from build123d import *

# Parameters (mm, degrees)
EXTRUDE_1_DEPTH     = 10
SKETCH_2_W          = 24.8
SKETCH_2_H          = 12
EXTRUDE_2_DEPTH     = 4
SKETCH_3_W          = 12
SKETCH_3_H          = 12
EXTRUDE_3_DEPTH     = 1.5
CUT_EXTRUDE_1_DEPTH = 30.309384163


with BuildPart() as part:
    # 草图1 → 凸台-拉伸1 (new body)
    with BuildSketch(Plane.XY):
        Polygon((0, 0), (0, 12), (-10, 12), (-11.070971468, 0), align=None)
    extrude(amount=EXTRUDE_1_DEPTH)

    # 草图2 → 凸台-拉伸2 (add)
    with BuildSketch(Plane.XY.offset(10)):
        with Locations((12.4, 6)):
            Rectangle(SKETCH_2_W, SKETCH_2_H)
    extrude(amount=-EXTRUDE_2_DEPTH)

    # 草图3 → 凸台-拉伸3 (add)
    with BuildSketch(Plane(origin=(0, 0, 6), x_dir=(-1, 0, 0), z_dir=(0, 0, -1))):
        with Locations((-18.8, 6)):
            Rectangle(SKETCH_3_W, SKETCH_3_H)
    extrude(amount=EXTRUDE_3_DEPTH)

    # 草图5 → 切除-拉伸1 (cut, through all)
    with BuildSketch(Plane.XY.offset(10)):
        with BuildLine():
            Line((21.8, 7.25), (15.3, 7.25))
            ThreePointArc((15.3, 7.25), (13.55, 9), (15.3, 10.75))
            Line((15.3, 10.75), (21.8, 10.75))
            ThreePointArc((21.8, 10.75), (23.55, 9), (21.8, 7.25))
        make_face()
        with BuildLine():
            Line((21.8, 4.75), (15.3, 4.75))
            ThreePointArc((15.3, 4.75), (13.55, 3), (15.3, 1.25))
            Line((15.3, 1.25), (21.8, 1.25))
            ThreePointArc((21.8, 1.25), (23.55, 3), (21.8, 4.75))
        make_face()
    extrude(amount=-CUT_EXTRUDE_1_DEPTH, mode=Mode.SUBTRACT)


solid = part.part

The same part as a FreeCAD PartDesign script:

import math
import FreeCAD as App
import Part
import Sketcher

V = App.Vector
Q = App.Units.Quantity

doc = App.newDocument("Part")
body = doc.addObject("PartDesign::Body", "Body")

# Sketch on XY plane
sketch1 = body.newObject("Sketcher::SketchObject", "Sketch")
sketch1.AttachmentSupport = (doc.getObject("XY_Plane"), [""])
sketch1.MapMode = "FlatFace"
sketch1.addGeometry(Part.LineSegment(V(0, 0, 0), V(0, 12, 0)), False)
sketch1.addGeometry(Part.LineSegment(V(0, 12, 0), V(-10, 12, 0)), False)
sketch1.addGeometry(Part.LineSegment(V(-10, 12, 0), V(-11, 0, 0)), False)
sketch1.addGeometry(Part.LineSegment(V(-11, 0, 0), V(0, 0, 0)), False)
sketch1.addConstraint(Sketcher.Constraint("Coincident", 0, 2, 1, 1))
sketch1.addConstraint(Sketcher.Constraint("Coincident", 1, 2, 2, 1))
sketch1.addConstraint(Sketcher.Constraint("Coincident", 2, 2, 3, 1))
sketch1.addConstraint(Sketcher.Constraint("Coincident", 3, 2, 0, 1))
sketch1.addConstraint(Sketcher.Constraint("Vertical", 0))
sketch1.addConstraint(Sketcher.Constraint("Horizontal", 1))
sketch1.addConstraint(Sketcher.Constraint("Horizontal", 3))
sketch1.addConstraint(Sketcher.Constraint("Coincident", 3, 2, -1, 1))
sketch1.addConstraint(Sketcher.Constraint("DistanceX", 1, 2, 1, 1, Q("10 mm")))
sketch1.addConstraint(Sketcher.Constraint("DistanceY", 0, 1, 0, 2, Q("12 mm")))
sketch1.addConstraint(Sketcher.Constraint("Angle", 2, Q("-95.1 deg")))
pad1 = body.newObject("PartDesign::Pad", "Pad")
pad1.Profile = sketch1
pad1.Length = 10

# Sketch on XY plane
sketch2 = body.newObject("Sketcher::SketchObject", "Sketch001")
sketch2.AttachmentSupport = (doc.getObject("XY_Plane"), [""])
sketch2.MapMode = "FlatFace"
sketch2.AttachmentOffset = App.Placement(V(0, 0, 10), App.Rotation())
sketch2.addGeometry(Part.LineSegment(V(0, 12, 0), V(0, 0, 0)), False)
sketch2.addGeometry(Part.LineSegment(V(0, 0, 0), V(25, 0, 0)), False)
sketch2.addGeometry(Part.LineSegment(V(25, 0, 0), V(25, 12, 0)), False)
sketch2.addGeometry(Part.LineSegment(V(25, 12, 0), V(0, 12, 0)), False)
sketch2.addConstraint(Sketcher.Constraint("Coincident", 0, 2, 1, 1))
sketch2.addConstraint(Sketcher.Constraint("Coincident", 1, 2, 2, 1))
sketch2.addConstraint(Sketcher.Constraint("Coincident", 2, 2, 3, 1))
sketch2.addConstraint(Sketcher.Constraint("Coincident", 3, 2, 0, 1))
sketch2.addConstraint(Sketcher.Constraint("Vertical", 0))
sketch2.addConstraint(Sketcher.Constraint("Horizontal", 1))
sketch2.addConstraint(Sketcher.Constraint("Vertical", 2))
sketch2.addConstraint(Sketcher.Constraint("Horizontal", 3))
sketch2.addConstraint(Sketcher.Constraint("Coincident", 0, 2, -1, 1))
sketch2.addConstraint(Sketcher.Constraint("DistanceY", 0, 2, 0, 1, Q("12 mm")))
sketch2.addConstraint(Sketcher.Constraint("DistanceX", 1, 1, 1, 2, Q("24.8 mm")))
pad2 = body.newObject("PartDesign::Pad", "Pad001")
pad2.Profile = sketch2
pad2.Length = 4
pad2.Reversed = True

# Sketch on XY plane
sketch3 = body.newObject("Sketcher::SketchObject", "Sketch002")
sketch3.AttachmentSupport = (doc.getObject("XY_Plane"), [""])
sketch3.MapMode = "FlatFace"
sketch3.AttachmentOffset = App.Placement(V(0, 0, 6), App.Rotation())
sketch3.addGeometry(Part.LineSegment(V(25, 12, 0), V(25, 0, 0)), False)
sketch3.addGeometry(Part.LineSegment(V(25, 0, 0), V(13, 0, 0)), False)
sketch3.addGeometry(Part.LineSegment(V(13, 0, 0), V(13, 12, 0)), False)
sketch3.addGeometry(Part.LineSegment(V(13, 12, 0), V(25, 12, 0)), False)
sketch3.addConstraint(Sketcher.Constraint("Coincident", 0, 2, 1, 1))
sketch3.addConstraint(Sketcher.Constraint("Coincident", 1, 2, 2, 1))
sketch3.addConstraint(Sketcher.Constraint("Coincident", 2, 2, 3, 1))
sketch3.addConstraint(Sketcher.Constraint("Coincident", 3, 2, 0, 1))
sketch3.addConstraint(Sketcher.Constraint("Vertical", 0))
sketch3.addConstraint(Sketcher.Constraint("Horizontal", 1))
sketch3.addConstraint(Sketcher.Constraint("Vertical", 2))
sketch3.addConstraint(Sketcher.Constraint("Horizontal", 3))
sketch3.addConstraint(Sketcher.Constraint("PointOnObject", 0, 2, -1))
sketch3.addConstraint(Sketcher.Constraint("Equal", 3, 0))
sketch3.addConstraint(Sketcher.Constraint("DistanceX", 1, 2, 1, 1, Q("12 mm")))
sketch3.addConstraint(Sketcher.Constraint("DistanceX", -1, 1, 0, 2, Q("24.8 mm")))
pad3 = body.newObject("PartDesign::Pad", "Pad002")
pad3.Profile = sketch3
pad3.Length = 1.5
pad3.Reversed = True

# Sketch on XY plane
sketch4 = body.newObject("Sketcher::SketchObject", "Sketch003")
sketch4.AttachmentSupport = (doc.getObject("XY_Plane"), [""])
sketch4.MapMode = "FlatFace"
sketch4.AttachmentOffset = App.Placement(V(0, 0, 10), App.Rotation())
sketch4.addGeometry(Part.LineSegment(V(15.3, 7.2, 0), V(21.8, 7.2, 0)), False)
sketch4.addGeometry(Part.ArcOfCircle(Part.Circle(V(21.8, 9, 0), V(0, 0, 1), 1.8), math.radians(-90), math.radians(90)), False)
sketch4.addGeometry(Part.LineSegment(V(21.8, 10.8, 0), V(15.3, 10.8, 0)), False)
sketch4.addGeometry(Part.ArcOfCircle(Part.Circle(V(15.3, 9, 0), V(0, 0, 1), 1.8), math.radians(90), math.radians(270)), False)
sketch4.addGeometry(Part.LineSegment(V(21.8, 4.8, 0), V(15.3, 4.8, 0)), False)
sketch4.addGeometry(Part.ArcOfCircle(Part.Circle(V(15.3, 3, 0), V(0, 0, 1), 1.8), math.radians(90), math.radians(270)), False)
sketch4.addGeometry(Part.LineSegment(V(15.3, 1.2, 0), V(21.8, 1.2, 0)), False)
sketch4.addGeometry(Part.ArcOfCircle(Part.Circle(V(21.8, 3, 0), V(0, 0, 1), 1.8), math.radians(-90), math.radians(90)), False)
sketch4.addConstraint(Sketcher.Constraint("Tangent", 0, 2, 1, 1))
sketch4.addConstraint(Sketcher.Constraint("Tangent", 1, 2, 2, 1))
sketch4.addConstraint(Sketcher.Constraint("Tangent", 2, 2, 3, 1))
sketch4.addConstraint(Sketcher.Constraint("Tangent", 3, 2, 0, 1))
sketch4.addConstraint(Sketcher.Constraint("Tangent", 4, 2, 5, 1))
sketch4.addConstraint(Sketcher.Constraint("Tangent", 5, 2, 6, 1))
sketch4.addConstraint(Sketcher.Constraint("Tangent", 6, 2, 7, 1))
sketch4.addConstraint(Sketcher.Constraint("Tangent", 7, 2, 4, 1))
sketch4.addConstraint(Sketcher.Constraint("Horizontal", 0))
sketch4.addConstraint(Sketcher.Constraint("Horizontal", 2))
sketch4.addConstraint(Sketcher.Constraint("Horizontal", 4))
sketch4.addConstraint(Sketcher.Constraint("Horizontal", 6))
sketch4.addConstraint(Sketcher.Constraint("Equal", 3, 5))
sketch4.addConstraint(Sketcher.Constraint("Vertical", 3, 3, 5, 3))
sketch4.addConstraint(Sketcher.Constraint("Vertical", 1, 3, 7, 3))
sketch4.addConstraint(Sketcher.Constraint("Radius", 1, Q("1.75 mm")))
sketch4.addConstraint(Sketcher.Constraint("DistanceX", 0, 1, 0, 2, Q("6.5 mm")))
sketch4.addConstraint(Sketcher.Constraint("DistanceY", -1, 1, 1, 3, Q("9 mm")))
sketch4.addConstraint(Sketcher.Constraint("DistanceY", -1, 1, 5, 3, Q("3 mm")))
sketch4.addConstraint(Sketcher.Constraint("DistanceX", -1, 1, 1, 3, Q("21.8 mm")))
pocket1 = body.newObject("PartDesign::Pocket", "Pocket")
pocket1.Profile = sketch4
pocket1.Type = "ThroughAll"

doc.recompute()
